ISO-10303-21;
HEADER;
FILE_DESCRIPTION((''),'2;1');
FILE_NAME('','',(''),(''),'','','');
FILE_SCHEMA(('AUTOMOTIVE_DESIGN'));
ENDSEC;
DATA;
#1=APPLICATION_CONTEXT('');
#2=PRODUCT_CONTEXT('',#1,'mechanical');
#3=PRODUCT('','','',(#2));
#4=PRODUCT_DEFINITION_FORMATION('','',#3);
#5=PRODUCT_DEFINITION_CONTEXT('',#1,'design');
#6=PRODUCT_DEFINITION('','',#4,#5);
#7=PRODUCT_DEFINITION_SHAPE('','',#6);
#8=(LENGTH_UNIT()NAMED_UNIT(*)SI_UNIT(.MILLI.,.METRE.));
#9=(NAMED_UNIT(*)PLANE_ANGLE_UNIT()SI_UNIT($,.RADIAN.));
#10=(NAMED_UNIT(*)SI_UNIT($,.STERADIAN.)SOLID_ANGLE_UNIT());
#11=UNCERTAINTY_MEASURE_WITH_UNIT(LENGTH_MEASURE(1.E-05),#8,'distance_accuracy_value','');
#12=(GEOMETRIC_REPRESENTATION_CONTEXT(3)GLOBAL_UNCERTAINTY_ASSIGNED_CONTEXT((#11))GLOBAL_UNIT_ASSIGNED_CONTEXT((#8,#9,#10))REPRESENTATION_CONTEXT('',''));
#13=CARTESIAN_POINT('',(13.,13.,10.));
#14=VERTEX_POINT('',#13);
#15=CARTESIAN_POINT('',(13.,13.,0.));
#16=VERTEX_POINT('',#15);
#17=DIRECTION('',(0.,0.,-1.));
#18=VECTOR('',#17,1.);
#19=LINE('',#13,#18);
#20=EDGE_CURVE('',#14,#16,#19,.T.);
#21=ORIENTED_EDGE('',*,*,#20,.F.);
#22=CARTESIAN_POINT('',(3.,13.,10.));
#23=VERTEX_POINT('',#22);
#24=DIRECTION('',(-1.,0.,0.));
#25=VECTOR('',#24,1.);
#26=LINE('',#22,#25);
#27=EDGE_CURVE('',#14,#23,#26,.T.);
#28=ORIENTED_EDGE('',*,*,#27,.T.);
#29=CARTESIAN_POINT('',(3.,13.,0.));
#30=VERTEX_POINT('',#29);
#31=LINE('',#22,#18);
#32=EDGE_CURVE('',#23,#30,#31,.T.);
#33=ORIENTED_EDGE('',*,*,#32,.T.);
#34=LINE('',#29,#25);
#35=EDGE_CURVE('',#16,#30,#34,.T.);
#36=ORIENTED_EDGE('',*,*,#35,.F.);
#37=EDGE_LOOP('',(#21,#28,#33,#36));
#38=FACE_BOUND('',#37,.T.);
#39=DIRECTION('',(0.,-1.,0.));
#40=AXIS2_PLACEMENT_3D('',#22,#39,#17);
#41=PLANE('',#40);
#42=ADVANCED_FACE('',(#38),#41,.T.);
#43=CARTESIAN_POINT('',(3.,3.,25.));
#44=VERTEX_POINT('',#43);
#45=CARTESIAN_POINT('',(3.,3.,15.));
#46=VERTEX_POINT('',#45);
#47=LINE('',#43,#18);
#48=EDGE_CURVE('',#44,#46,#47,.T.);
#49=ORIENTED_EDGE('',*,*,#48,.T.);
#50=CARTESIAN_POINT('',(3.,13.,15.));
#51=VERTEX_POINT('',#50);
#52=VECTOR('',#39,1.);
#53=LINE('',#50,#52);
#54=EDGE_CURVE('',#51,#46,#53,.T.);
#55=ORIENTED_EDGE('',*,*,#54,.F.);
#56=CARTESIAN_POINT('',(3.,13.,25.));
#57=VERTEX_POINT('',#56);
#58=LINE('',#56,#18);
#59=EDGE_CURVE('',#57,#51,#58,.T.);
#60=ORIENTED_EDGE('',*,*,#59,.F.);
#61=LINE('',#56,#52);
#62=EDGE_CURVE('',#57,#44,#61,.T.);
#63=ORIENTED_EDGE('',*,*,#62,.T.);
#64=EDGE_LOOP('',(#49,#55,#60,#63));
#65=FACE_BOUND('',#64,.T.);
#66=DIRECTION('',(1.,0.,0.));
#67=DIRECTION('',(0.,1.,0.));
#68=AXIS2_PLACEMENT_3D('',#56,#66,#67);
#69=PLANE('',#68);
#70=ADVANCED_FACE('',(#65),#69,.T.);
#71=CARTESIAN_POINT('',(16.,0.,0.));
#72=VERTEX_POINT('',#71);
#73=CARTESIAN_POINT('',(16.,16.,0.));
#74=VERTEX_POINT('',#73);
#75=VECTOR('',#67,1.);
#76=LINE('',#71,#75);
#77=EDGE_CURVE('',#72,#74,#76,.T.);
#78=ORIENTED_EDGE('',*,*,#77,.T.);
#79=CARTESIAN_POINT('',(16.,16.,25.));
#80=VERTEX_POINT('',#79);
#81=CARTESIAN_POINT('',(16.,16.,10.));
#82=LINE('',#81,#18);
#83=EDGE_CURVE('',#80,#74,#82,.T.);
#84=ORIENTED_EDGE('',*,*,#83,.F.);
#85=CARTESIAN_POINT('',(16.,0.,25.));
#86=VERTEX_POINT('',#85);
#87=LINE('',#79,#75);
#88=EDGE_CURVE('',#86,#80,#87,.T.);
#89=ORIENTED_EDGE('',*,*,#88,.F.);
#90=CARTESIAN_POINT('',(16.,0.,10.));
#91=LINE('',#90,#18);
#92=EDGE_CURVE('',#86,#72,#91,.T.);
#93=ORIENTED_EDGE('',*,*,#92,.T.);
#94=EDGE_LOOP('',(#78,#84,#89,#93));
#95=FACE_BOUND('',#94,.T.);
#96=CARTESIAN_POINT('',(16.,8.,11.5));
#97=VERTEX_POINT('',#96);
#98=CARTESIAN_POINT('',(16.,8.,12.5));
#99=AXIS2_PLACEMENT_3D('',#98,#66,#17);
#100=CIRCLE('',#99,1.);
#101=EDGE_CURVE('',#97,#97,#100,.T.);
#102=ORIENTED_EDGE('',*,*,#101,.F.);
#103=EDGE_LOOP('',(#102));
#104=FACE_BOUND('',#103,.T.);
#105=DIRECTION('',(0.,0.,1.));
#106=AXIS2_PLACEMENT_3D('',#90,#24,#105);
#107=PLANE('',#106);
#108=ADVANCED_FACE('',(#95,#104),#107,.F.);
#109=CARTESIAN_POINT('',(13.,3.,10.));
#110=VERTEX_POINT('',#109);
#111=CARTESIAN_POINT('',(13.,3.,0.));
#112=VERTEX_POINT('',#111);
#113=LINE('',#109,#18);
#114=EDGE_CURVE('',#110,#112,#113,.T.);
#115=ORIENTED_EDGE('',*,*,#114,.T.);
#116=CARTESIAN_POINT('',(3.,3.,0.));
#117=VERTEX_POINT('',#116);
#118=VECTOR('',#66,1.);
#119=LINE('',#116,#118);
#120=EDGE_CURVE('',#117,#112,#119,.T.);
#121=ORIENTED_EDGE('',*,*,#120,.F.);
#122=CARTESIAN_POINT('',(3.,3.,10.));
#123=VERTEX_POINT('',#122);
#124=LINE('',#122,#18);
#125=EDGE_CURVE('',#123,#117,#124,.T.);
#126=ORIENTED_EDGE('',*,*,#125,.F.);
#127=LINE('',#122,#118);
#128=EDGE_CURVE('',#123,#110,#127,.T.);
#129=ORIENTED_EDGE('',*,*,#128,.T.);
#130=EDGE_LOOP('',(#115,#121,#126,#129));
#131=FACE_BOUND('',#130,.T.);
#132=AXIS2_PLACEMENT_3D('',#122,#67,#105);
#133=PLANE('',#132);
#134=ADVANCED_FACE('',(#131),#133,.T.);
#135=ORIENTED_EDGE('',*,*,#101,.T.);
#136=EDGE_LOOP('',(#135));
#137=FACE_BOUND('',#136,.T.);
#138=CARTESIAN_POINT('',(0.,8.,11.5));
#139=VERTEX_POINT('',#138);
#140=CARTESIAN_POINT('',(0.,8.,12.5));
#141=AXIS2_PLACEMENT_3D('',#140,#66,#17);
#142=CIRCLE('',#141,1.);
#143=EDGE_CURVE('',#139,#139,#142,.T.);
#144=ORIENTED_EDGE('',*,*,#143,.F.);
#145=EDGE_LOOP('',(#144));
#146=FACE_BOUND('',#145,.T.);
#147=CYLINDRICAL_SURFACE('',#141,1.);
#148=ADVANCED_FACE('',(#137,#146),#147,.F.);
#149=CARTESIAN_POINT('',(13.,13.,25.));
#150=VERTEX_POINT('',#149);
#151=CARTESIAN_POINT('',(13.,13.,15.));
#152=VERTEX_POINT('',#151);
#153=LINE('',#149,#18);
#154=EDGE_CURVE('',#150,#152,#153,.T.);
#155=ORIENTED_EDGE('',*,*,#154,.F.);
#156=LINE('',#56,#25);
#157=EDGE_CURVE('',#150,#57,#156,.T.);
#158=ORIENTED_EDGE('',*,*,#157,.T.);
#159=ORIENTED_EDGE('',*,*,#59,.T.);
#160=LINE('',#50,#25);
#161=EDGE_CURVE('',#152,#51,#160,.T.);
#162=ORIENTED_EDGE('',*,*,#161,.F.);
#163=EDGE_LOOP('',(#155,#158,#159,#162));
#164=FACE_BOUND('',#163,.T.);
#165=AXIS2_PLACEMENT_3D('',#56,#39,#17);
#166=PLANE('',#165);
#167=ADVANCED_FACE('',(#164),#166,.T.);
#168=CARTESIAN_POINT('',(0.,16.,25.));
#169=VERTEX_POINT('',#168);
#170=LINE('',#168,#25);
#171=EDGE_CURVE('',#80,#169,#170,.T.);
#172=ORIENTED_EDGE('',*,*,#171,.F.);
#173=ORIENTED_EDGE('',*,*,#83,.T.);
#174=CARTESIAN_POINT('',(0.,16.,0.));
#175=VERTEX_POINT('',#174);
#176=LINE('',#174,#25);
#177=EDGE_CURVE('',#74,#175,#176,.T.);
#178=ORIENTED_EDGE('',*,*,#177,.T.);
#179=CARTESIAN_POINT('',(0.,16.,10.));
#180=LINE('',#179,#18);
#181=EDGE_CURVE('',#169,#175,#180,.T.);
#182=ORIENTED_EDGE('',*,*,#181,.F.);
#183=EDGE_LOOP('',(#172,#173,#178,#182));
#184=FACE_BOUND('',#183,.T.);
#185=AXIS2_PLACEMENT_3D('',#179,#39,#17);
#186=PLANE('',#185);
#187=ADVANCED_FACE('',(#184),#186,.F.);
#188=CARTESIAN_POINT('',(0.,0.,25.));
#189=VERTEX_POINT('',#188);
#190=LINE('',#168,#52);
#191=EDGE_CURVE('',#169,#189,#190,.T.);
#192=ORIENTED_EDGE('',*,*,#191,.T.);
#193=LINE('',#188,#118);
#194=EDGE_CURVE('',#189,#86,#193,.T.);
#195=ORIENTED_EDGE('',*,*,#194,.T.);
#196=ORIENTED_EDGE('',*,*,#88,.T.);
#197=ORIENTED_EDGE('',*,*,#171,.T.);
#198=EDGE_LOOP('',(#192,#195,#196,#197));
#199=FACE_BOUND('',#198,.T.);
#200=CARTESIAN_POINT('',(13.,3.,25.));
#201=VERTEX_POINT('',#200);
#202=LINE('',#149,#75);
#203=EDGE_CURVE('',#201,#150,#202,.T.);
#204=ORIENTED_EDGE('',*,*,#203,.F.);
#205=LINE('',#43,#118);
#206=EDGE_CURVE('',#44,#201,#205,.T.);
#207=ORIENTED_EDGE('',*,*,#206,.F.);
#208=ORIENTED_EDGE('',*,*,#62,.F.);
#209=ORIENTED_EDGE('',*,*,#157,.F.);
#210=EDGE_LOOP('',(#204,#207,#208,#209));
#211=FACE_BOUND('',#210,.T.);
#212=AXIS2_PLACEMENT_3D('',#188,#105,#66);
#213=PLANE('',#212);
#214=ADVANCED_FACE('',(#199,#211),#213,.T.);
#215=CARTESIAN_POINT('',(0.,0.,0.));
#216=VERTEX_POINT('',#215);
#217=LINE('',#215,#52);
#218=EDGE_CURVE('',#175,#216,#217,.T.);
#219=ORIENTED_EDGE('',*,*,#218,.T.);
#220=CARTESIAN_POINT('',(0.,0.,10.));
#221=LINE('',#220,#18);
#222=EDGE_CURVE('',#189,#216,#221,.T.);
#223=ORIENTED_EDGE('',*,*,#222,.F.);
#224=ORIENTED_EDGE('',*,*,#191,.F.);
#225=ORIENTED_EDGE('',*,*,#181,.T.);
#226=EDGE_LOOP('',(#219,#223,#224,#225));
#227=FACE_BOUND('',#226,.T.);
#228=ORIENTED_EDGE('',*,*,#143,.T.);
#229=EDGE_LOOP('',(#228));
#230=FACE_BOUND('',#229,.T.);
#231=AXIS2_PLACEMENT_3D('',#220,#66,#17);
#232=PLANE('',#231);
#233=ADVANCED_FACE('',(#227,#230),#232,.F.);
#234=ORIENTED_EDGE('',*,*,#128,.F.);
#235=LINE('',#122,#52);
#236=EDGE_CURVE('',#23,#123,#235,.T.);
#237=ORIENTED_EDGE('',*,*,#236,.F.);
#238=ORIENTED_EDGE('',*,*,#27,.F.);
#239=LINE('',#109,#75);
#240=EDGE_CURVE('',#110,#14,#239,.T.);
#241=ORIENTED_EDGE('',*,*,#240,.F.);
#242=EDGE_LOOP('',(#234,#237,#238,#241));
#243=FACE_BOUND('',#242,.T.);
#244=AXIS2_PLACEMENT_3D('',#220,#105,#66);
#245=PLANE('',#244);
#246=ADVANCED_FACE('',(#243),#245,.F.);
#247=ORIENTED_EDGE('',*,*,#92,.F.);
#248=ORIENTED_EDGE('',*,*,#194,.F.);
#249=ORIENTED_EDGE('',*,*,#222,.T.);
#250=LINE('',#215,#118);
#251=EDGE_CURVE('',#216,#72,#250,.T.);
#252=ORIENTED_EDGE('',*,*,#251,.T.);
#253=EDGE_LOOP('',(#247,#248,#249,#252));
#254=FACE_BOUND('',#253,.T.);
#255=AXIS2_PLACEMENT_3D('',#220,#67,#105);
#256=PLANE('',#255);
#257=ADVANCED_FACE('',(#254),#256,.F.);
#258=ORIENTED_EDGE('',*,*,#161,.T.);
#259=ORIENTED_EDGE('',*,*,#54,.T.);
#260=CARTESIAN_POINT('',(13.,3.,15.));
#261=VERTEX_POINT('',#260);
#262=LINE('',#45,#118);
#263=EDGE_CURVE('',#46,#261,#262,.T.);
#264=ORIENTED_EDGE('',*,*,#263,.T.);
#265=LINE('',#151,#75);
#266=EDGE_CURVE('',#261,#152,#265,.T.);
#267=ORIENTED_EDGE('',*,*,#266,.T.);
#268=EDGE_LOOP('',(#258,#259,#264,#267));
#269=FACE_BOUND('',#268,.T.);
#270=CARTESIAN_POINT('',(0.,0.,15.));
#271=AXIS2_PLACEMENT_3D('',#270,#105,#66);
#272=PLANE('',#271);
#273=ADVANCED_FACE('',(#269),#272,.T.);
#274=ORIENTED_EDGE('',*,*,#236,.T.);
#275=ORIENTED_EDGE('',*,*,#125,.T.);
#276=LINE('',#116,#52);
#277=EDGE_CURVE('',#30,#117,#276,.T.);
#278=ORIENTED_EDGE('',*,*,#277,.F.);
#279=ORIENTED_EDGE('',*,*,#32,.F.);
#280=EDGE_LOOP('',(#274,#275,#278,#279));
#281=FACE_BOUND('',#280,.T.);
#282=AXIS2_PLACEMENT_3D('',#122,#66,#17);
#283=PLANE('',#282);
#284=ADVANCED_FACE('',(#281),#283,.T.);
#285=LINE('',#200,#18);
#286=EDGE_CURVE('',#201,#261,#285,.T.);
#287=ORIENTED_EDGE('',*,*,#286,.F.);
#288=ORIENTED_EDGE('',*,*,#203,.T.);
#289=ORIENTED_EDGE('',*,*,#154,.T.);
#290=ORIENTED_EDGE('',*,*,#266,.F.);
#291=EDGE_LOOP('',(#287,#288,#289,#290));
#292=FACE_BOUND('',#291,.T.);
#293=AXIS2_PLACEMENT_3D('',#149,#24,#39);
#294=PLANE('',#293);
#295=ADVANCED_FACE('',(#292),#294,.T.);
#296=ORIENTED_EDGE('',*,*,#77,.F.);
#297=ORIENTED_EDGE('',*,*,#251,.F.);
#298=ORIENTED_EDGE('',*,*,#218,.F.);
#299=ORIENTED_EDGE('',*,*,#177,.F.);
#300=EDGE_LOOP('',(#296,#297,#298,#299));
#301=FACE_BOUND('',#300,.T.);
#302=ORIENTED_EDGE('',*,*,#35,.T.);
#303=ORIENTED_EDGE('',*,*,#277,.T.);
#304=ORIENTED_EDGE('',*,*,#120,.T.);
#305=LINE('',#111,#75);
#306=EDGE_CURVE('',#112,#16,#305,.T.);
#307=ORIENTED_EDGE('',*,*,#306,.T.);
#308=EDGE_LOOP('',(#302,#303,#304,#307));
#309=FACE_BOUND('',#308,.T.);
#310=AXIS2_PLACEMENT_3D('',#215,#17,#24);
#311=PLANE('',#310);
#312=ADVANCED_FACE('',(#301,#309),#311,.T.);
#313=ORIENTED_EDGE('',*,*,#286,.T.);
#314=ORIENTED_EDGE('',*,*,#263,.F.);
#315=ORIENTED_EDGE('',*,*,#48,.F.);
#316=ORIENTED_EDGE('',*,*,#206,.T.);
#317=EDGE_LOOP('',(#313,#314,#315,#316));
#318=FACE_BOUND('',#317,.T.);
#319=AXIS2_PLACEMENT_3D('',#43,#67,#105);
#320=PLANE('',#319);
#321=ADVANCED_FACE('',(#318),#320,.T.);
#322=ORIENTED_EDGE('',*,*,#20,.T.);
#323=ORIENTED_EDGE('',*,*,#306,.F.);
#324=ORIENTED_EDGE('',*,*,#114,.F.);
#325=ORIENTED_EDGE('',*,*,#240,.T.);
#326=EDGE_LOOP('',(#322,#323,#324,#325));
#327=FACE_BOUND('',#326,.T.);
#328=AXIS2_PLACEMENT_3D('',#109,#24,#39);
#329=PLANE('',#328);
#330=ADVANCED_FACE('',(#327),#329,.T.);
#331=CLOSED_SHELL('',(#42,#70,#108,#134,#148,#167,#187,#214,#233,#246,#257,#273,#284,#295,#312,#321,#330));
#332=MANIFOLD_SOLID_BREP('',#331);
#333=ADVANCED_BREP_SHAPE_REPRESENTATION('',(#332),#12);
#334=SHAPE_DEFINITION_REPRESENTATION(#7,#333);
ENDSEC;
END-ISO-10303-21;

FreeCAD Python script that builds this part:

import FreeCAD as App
import Part
import Sketcher

V = App.Vector

doc = App.newDocument("Part")
body = doc.addObject("PartDesign::Body", "Body")

# Sketch on XY plane
sketch1 = body.newObject("Sketcher::SketchObject", "Sketch")
sketch1.AttachmentSupport = (doc.getObject("XY_Plane"), [""])
sketch1.MapMode = "FlatFace"
sketch1.addGeometry([
    Part.LineSegment(V(0, 16, 0), V(0, 0, 0)),  # 0
    Part.LineSegment(V(0, 0, 0), V(16, 0, 0)),  # 1
    Part.LineSegment(V(16, 0, 0), V(16, 16, 0)),  # 2
    Part.LineSegment(V(16, 16, 0), V(0, 16, 0)),  # 3
    Part.LineSegment(V(13, 3, 0), V(3, 3, 0)),  # 4
    Part.LineSegment(V(3, 3, 0), V(3, 13, 0)),  # 5
    Part.LineSegment(V(3, 13, 0), V(13, 13, 0)),  # 6
    Part.LineSegment(V(13, 13, 0), V(13, 3, 0)),  # 7
], False)
sketch1.addConstraint([
    Sketcher.Constraint("Coincident", 0, 2, 1, 1),
    Sketcher.Constraint("Coincident", 1, 2, 2, 1),
    Sketcher.Constraint("Coincident", 2, 2, 3, 1),
    Sketcher.Constraint("Coincident", 3, 2, 0, 1),
    Sketcher.Constraint("Coincident", 4, 2, 5, 1),
    Sketcher.Constraint("Coincident", 5, 2, 6, 1),
    Sketcher.Constraint("Coincident", 6, 2, 7, 1),
    Sketcher.Constraint("Coincident", 7, 2, 4, 1),
    Sketcher.Constraint("Vertical", 0),
    Sketcher.Constraint("Horizontal", 1),
    Sketcher.Constraint("Vertical", 2),
    Sketcher.Constraint("Horizontal", 3),
    Sketcher.Constraint("Horizontal", 4),
    Sketcher.Constraint("Vertical", 5),
    Sketcher.Constraint("Horizontal", 6),
    Sketcher.Constraint("Vertical", 7),
    Sketcher.Constraint("Coincident", 0, 2, -1, 1),
    Sketcher.Constraint("Equal", 3, 0),
    Sketcher.Constraint("Equal", 6, 5),
    Sketcher.Constraint("DistanceX", 1, 1, 1, 2, 16.0),
    Sketcher.Constraint("DistanceX", 4, 2, 4, 1, 10.0),
    Sketcher.Constraint("DistanceX", -1, 1, 4, 2, 3.0),
    Sketcher.Constraint("DistanceY", -1, 1, 4, 2, 3.0),
])
pad1 = body.newObject("PartDesign::Pad", "Pad")
pad1.Profile = sketch1
pad1.Length = 10

# Sketch on XY plane
sketch2 = body.newObject("Sketcher::SketchObject", "Sketch001")
sketch2.AttachmentSupport = (doc.getObject("XY_Plane"), [""])
sketch2.MapMode = "FlatFace"
sketch2.AttachmentOffset = App.Placement(V(0, 0, 10), App.Rotation())
sketch2.addGeometry([
    Part.LineSegment(V(0, 16, 0), V(0, 0, 0)),
    Part.LineSegment(V(0, 0, 0), V(16, 0, 0)),
    Part.LineSegment(V(16, 0, 0), V(16, 16, 0)),
    Part.LineSegment(V(16, 16, 0), V(0, 16, 0)),
], False)
sketch2.addConstraint([
    Sketcher.Constraint("Coincident", 0, 2, 1, 1),
    Sketcher.Constraint("Coincident", 1, 2, 2, 1),
    Sketcher.Constraint("Coincident", 2, 2, 3, 1),
    Sketcher.Constraint("Coincident", 3, 2, 0, 1),
    Sketcher.Constraint("Vertical", 0),
    Sketcher.Constraint("Horizontal", 1),
    Sketcher.Constraint("Vertical", 2),
    Sketcher.Constraint("Horizontal", 3),
    Sketcher.Constraint("Coincident", 0, 2, -1, 1),
    Sketcher.Constraint("Equal", 3, 0),
    Sketcher.Constraint("DistanceX", 1, 1, 1, 2, 16.0),
])
pad2 = body.newObject("PartDesign::Pad", "Pad001")
pad2.Profile = sketch2
pad2.Length = 5

# Sketch on XY plane
sketch3 = body.newObject("Sketcher::SketchObject", "Sketch002")
sketch3.AttachmentSupport = (doc.getObject("XY_Plane"), [""])
sketch3.MapMode = "FlatFace"
sketch3.AttachmentOffset = App.Placement(V(0, 0, 15), App.Rotation())
sketch3.addGeometry([
    Part.LineSegment(V(0, 16, 0), V(0, 0, 0)),  # 0
    Part.LineSegment(V(0, 0, 0), V(16, 0, 0)),  # 1
    Part.LineSegment(V(16, 0, 0), V(16, 16, 0)),  # 2
    Part.LineSegment(V(16, 16, 0), V(0, 16, 0)),  # 3
    Part.LineSegment(V(13, 3, 0), V(3, 3, 0)),  # 4
    Part.LineSegment(V(3, 3, 0), V(3, 13, 0)),  # 5
    Part.LineSegment(V(3, 13, 0), V(13, 13, 0)),  # 6
    Part.LineSegment(V(13, 13, 0), V(13, 3, 0)),  # 7
], False)
sketch3.addConstraint([
    Sketcher.Constraint("Coincident", 0, 2, 1, 1),
    Sketcher.Constraint("Coincident", 1, 2, 2, 1),
    Sketcher.Constraint("Coincident", 2, 2, 3, 1),
    Sketcher.Constraint("Coincident", 3, 2, 0, 1),
    Sketcher.Constraint("Coincident", 4, 2, 5, 1),
    Sketcher.Constraint("Coincident", 5, 2, 6, 1),
    Sketcher.Constraint("Coincident", 6, 2, 7, 1),
    Sketcher.Constraint("Coincident", 7, 2, 4, 1),
    Sketcher.Constraint("Vertical", 0),
    Sketcher.Constraint("Horizontal", 1),
    Sketcher.Constraint("Vertical", 2),
    Sketcher.Constraint("Horizontal", 3),
    Sketcher.Constraint("Horizontal", 4),
    Sketcher.Constraint("Vertical", 5),
    Sketcher.Constraint("Horizontal", 6),
    Sketcher.Constraint("Vertical", 7),
    Sketcher.Constraint("Coincident", 0, 2, -1, 1),
    Sketcher.Constraint("Equal", 3, 0),
    Sketcher.Constraint("Equal", 6, 5),
    Sketcher.Constraint("DistanceX", 1, 1, 1, 2, 16.0),
    Sketcher.Constraint("DistanceX", 4, 2, 4, 1, 10.0),
    Sketcher.Constraint("DistanceX", -1, 1, 4, 2, 3.0),
    Sketcher.Constraint("DistanceY", -1, 1, 4, 2, 3.0),
])
pad3 = body.newObject("PartDesign::Pad", "Pad002")
pad3.Profile = sketch3
pad3.Length = 10

# Sketch on YZ plane
sketch4 = body.newObject("Sketcher::SketchObject", "Sketch003")
sketch4.AttachmentSupport = (doc.getObject("YZ_Plane"), [""])
sketch4.MapMode = "FlatFace"
sketch4.AttachmentOffset = App.Placement(V(0, 0, 16), App.Rotation())
sketch4.addGeometry(Part.Circle(V(8, 12.5, 0), V(0, 0, 1), 1), False)
sketch4.addConstraint([
    Sketcher.Constraint("Diameter", 0, 2.0),
    Sketcher.Constraint("DistanceX", -1, 1, 0, 3, 8.0),
    Sketcher.Constraint("DistanceY", -1, 1, 0, 3, 12.5),
])
pocket1 = body.newObject("PartDesign::Pocket", "Pocket")
pocket1.Profile = sketch4
pocket1.Length = 16

doc.recompute()
